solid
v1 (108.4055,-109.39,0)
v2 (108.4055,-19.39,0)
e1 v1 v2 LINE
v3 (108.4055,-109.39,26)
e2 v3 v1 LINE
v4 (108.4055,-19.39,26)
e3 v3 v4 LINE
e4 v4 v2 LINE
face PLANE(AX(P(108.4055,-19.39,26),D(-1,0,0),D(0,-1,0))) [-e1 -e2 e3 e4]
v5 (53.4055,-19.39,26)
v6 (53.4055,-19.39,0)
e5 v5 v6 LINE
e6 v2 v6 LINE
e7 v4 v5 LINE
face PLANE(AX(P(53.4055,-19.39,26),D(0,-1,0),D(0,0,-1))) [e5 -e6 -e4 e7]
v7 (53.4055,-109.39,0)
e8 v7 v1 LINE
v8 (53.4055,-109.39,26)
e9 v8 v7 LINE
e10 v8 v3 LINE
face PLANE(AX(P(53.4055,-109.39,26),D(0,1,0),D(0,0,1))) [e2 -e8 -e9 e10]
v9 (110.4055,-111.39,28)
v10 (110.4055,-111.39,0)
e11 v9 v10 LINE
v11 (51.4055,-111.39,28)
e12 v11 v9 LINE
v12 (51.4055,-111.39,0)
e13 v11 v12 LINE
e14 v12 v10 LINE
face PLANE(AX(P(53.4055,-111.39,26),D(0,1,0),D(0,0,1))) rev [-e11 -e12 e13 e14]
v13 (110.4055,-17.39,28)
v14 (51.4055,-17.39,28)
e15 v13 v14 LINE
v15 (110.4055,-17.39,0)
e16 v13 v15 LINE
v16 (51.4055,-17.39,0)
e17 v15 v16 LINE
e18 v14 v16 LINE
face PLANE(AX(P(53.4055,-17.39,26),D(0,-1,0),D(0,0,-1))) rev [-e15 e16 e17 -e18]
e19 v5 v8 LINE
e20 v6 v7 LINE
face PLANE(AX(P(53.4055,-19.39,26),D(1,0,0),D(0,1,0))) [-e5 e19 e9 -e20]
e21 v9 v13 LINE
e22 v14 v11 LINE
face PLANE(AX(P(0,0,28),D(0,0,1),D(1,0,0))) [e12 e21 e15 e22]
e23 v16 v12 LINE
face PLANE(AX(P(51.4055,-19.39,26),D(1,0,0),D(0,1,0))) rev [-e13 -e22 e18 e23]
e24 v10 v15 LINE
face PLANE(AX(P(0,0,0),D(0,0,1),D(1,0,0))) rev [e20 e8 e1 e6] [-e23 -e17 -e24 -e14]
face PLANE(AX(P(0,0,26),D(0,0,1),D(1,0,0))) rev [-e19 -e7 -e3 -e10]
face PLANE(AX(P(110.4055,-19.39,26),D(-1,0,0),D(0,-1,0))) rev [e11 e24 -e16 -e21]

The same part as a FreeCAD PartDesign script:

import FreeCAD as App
import Part
import Sketcher
Q = App.Units.Quantity

doc = App.newDocument("Part")
body = doc.addObject("PartDesign::Body", "Body")

# Sketch on XY plane
sketch1 = doc.addObject("Sketcher::SketchObject", "Sketch")
body.addObject(sketch1)
sketch1.AttachmentSupport = (doc.XY_Plane, [""])
sketch1.MapMode = "FlatFace"
sketch1.addGeometry([
    Part.LineSegment(App.Vector(51.4055, -17.39, 0), App.Vector(51.4055, -111.39, 0)),  # 0
    Part.LineSegment(App.Vector(51.4055, -111.39, 0), App.Vector(110.4055, -111.39, 0)),  # 1
    Part.LineSegment(App.Vector(110.4055, -111.39, 0), App.Vector(110.4055, -17.39, 0)),  # 2
    Part.LineSegment(App.Vector(110.4055, -17.39, 0), App.Vector(51.4055, -17.39, 0)),  # 3
    Part.LineSegment(App.Vector(108.4055, -109.39, 0), App.Vector(53.4055, -109.39, 0)),  # 4
    Part.LineSegment(App.Vector(53.4055, -109.39, 0), App.Vector(53.4055, -19.39, 0)),  # 5
    Part.LineSegment(App.Vector(53.4055, -19.39, 0), App.Vector(108.4055, -19.39, 0)),  # 6
    Part.LineSegment(App.Vector(108.4055, -19.39, 0), App.Vector(108.4055, -109.39, 0)),  # 7
], False)
sketch1.addConstraint([
    Sketcher.Constraint("Coincident", 0, 2, 1, 1),
    Sketcher.Constraint("Coincident", 1, 2, 2, 1),
    Sketcher.Constraint("Coincident", 2, 2, 3, 1),
    Sketcher.Constraint("Coincident", 3, 2, 0, 1),
    Sketcher.Constraint("Coincident", 4, 2, 5, 1),
    Sketcher.Constraint("Coincident", 5, 2, 6, 1),
    Sketcher.Constraint("Coincident", 6, 2, 7, 1),
    Sketcher.Constraint("Coincident", 7, 2, 4, 1),
    Sketcher.Constraint("Vertical", 0),
    Sketcher.Constraint("Horizontal", 1),
    Sketcher.Constraint("Vertical", 2),
    Sketcher.Constraint("Horizontal", 3),
    Sketcher.Constraint("Horizontal", 4),
    Sketcher.Constraint("Vertical", 5),
    Sketcher.Constraint("Horizontal", 6),
    Sketcher.Constraint("Vertical", 7),
    Sketcher.Constraint("DistanceX", 1, 1, 1, 2, Q("59 mm")),
    Sketcher.Constraint("DistanceX", 4, 2, 4, 1, Q("55 mm")),
    Sketcher.Constraint("DistanceY", 0, 2, 0, 1, Q("94 mm")),
    Sketcher.Constraint("DistanceY", 5, 1, 5, 2, Q("90 mm")),
    Sketcher.Constraint("DistanceX", 0, 2, 4, 2, Q("2 mm")),
    Sketcher.Constraint("DistanceY", 0, 2, 4, 2, Q("2 mm")),
    Sketcher.Constraint("DistanceY", 0, 2, -1, 1, Q("111.39 mm")),
    Sketcher.Constraint("DistanceX", -1, 1, 0, 2, Q("51.4055 mm")),
])
pad1 = doc.addObject("PartDesign::Pad", "Pad")
body.addObject(pad1)
pad1.Profile = sketch1
pad1.Length = 26

# Sketch on XY plane
sketch2 = doc.addObject("Sketcher::SketchObject", "Sketch001")
body.addObject(sketch2)
sketch2.AttachmentSupport = (doc.XY_Plane, [""])
sketch2.MapMode = "FlatFace"
sketch2.AttachmentOffset = App.Placement(App.Vector(0, 0, 26), App.Rotation())
sketch2.addGeometry([
    Part.LineSegment(App.Vector(51.4055, -17.39, 0), App.Vector(51.4055, -111.39, 0)),
    Part.LineSegment(App.Vector(51.4055, -111.39, 0), App.Vector(110.4055, -111.39, 0)),
    Part.LineSegment(App.Vector(110.4055, -111.39, 0), App.Vector(110.4055, -17.39, 0)),
    Part.LineSegment(App.Vector(110.4055, -17.39, 0), App.Vector(51.4055, -17.39, 0)),
], False)
sketch2.addConstraint([
    Sketcher.Constraint("Coincident", 0, 2, 1, 1),
    Sketcher.Constraint("Coincident", 1, 2, 2, 1),
    Sketcher.Constraint("Coincident", 2, 2, 3, 1),
    Sketcher.Constraint("Coincident", 3, 2, 0, 1),
    Sketcher.Constraint("Vertical", 0),
    Sketcher.Constraint("Horizontal", 1),
    Sketcher.Constraint("Vertical", 2),
    Sketcher.Constraint("Horizontal", 3),
    Sketcher.Constraint("DistanceX", 1, 1, 1, 2, Q("59 mm")),
    Sketcher.Constraint("DistanceY", 0, 2, 0, 1, Q("94 mm")),
    Sketcher.Constraint("DistanceY", 0, 2, -1, 1, Q("111.39 mm")),
    Sketcher.Constraint("DistanceX", -1, 1, 0, 2, Q("51.4055 mm")),
])
pad2 = doc.addObject("PartDesign::Pad", "Pad001")
body.addObject(pad2)
pad2.Profile = sketch2
pad2.Length = 2

doc.recompute()
